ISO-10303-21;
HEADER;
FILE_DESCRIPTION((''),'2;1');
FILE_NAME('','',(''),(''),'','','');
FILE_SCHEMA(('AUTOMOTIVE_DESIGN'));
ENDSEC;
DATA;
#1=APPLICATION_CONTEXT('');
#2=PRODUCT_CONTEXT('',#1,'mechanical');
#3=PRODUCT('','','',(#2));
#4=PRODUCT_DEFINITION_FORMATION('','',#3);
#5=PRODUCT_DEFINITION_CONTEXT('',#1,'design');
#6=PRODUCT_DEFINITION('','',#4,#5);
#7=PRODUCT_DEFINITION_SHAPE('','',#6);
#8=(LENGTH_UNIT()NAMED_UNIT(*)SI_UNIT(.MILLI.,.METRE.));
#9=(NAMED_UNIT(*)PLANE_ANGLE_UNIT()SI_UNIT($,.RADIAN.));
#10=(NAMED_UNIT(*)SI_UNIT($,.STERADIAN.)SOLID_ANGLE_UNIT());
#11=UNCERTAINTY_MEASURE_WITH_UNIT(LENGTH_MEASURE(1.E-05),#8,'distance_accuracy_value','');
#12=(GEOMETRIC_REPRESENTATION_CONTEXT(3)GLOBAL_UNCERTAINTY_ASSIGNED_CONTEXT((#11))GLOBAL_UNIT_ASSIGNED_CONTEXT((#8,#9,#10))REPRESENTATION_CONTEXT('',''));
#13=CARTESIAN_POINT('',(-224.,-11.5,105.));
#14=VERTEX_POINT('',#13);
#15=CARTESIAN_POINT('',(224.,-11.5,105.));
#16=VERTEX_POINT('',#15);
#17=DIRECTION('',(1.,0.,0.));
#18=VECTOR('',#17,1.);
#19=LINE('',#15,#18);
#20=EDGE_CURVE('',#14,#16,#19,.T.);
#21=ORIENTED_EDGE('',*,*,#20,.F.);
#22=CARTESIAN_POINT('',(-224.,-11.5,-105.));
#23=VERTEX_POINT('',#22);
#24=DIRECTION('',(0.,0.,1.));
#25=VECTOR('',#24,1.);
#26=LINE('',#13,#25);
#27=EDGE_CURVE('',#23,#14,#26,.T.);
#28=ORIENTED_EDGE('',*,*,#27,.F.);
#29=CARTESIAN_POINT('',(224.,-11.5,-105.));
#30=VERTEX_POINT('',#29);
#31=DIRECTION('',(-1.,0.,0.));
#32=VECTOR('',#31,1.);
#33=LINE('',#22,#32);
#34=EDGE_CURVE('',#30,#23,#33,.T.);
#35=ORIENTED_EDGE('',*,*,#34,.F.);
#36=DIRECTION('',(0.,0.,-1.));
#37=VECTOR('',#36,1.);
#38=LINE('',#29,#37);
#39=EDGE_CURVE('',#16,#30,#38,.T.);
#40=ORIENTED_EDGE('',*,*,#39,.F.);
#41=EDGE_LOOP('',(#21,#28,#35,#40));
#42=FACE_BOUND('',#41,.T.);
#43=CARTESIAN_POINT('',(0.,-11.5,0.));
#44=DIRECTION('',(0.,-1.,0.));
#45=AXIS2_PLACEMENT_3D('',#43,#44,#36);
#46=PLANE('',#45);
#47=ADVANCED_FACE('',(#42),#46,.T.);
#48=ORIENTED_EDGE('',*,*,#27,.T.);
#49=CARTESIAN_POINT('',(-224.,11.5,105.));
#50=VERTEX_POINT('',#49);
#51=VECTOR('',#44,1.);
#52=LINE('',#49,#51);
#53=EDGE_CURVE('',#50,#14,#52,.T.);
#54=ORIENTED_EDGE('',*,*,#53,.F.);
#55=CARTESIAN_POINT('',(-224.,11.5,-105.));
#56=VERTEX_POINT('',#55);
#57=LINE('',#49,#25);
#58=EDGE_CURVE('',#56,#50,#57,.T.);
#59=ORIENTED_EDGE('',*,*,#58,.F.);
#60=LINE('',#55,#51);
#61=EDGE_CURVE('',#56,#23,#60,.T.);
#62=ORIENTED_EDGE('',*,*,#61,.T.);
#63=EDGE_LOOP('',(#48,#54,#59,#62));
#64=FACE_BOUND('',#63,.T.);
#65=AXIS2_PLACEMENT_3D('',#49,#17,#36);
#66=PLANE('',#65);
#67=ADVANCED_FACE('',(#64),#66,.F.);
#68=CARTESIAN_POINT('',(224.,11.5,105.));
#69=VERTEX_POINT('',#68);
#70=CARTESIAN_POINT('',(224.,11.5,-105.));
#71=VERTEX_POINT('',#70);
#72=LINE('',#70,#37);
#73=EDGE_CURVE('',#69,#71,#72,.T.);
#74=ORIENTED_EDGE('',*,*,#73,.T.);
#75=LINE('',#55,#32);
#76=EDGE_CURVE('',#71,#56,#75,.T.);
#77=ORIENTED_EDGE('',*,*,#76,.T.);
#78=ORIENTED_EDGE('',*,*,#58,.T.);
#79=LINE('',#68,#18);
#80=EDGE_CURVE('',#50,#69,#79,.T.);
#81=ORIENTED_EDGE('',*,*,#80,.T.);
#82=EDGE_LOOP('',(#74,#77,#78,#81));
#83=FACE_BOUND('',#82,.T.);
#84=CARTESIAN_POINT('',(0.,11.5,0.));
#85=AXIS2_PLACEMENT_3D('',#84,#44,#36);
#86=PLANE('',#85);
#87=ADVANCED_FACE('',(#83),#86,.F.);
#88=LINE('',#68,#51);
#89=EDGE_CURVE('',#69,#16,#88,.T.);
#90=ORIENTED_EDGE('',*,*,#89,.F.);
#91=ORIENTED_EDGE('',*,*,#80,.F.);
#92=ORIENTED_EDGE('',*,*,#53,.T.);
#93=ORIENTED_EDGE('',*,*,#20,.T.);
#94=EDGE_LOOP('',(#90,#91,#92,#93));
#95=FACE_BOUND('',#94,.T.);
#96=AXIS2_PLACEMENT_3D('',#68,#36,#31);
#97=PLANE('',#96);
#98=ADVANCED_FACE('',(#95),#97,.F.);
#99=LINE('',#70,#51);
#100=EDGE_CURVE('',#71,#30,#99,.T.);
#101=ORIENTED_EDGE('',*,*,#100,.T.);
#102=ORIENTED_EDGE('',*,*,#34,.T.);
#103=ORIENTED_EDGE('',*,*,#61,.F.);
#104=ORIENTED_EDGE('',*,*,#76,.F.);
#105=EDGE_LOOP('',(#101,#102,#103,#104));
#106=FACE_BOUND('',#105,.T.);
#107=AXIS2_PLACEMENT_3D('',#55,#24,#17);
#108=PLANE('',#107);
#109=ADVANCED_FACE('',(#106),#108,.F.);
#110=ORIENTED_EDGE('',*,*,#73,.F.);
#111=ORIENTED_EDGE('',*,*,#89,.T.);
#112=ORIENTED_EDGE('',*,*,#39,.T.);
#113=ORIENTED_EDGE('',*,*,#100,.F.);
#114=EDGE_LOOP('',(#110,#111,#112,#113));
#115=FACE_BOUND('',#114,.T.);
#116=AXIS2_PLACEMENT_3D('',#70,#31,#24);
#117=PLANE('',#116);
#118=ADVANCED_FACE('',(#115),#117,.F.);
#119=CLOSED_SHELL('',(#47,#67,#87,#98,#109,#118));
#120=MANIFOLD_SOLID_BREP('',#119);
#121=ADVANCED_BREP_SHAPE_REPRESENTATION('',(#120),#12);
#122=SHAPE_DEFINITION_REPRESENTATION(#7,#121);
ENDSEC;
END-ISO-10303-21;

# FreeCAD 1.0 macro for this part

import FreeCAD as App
import Part
import Sketcher
Q = App.Units.Quantity

doc = App.newDocument("Part")
params = doc.addObject("Spreadsheet::Sheet", "Params")
for row, (alias, value) in enumerate([
    ("sketch1_width", "448 mm"),
    ("sketch1_height", "210 mm"),
    ("pad1_length", "23 mm"),
], start=1):
    params.set(f"A{row}", alias)
    params.set(f"B{row}", "=" + value)
    params.setAlias(f"B{row}", alias)

body = doc.addObject("PartDesign::Body", "Body")

sketch1 = body.newObject("Sketcher::SketchObject", "Sketch")
sketch1.AttachmentSupport = (doc.getObject("XZ_Plane"), [""])
sketch1.MapMode = "FlatFace"
sketch1.addGeometry([
    Part.LineSegment(App.Vector(-224, -105, 0), App.Vector(-224, 105, 0)),
    Part.LineSegment(App.Vector(-224, 105, 0), App.Vector(224, 105, 0)),
    Part.LineSegment(App.Vector(224, 105, 0), App.Vector(224, -105, 0)),
    Part.LineSegment(App.Vector(224, -105, 0), App.Vector(-224, -105, 0)),
], False)
sketch1.addConstraint([
    Sketcher.Constraint("Coincident", 0, 2, 1, 1),
    Sketcher.Constraint("Coincident", 1, 2, 2, 1),
    Sketcher.Constraint("Coincident", 2, 2, 3, 1),
    Sketcher.Constraint("Coincident", 3, 2, 0, 1),
    Sketcher.Constraint("Vertical", 0),
    Sketcher.Constraint("Horizontal", 1),
    Sketcher.Constraint("Vertical", 2),
    Sketcher.Constraint("Horizontal", 3),
    Sketcher.Constraint("Symmetric", 0, 2, 2, 2, -1, 1),
    Sketcher.Constraint("DistanceX", 1, 1, 1, 2, Q("448 mm")),
    Sketcher.Constraint("DistanceY", 0, 1, 0, 2, Q("210 mm")),
])
sketch1.setExpression("Constraints[9]", "Params.sketch1_width")
sketch1.setExpression("Constraints[10]", "Params.sketch1_height")
pad1 = body.newObject("PartDesign::Pad", "Pad")
pad1.Profile = sketch1
pad1.setExpression("Length", "Params.pad1_length")
pad1.Midplane = True

doc.recompute()
